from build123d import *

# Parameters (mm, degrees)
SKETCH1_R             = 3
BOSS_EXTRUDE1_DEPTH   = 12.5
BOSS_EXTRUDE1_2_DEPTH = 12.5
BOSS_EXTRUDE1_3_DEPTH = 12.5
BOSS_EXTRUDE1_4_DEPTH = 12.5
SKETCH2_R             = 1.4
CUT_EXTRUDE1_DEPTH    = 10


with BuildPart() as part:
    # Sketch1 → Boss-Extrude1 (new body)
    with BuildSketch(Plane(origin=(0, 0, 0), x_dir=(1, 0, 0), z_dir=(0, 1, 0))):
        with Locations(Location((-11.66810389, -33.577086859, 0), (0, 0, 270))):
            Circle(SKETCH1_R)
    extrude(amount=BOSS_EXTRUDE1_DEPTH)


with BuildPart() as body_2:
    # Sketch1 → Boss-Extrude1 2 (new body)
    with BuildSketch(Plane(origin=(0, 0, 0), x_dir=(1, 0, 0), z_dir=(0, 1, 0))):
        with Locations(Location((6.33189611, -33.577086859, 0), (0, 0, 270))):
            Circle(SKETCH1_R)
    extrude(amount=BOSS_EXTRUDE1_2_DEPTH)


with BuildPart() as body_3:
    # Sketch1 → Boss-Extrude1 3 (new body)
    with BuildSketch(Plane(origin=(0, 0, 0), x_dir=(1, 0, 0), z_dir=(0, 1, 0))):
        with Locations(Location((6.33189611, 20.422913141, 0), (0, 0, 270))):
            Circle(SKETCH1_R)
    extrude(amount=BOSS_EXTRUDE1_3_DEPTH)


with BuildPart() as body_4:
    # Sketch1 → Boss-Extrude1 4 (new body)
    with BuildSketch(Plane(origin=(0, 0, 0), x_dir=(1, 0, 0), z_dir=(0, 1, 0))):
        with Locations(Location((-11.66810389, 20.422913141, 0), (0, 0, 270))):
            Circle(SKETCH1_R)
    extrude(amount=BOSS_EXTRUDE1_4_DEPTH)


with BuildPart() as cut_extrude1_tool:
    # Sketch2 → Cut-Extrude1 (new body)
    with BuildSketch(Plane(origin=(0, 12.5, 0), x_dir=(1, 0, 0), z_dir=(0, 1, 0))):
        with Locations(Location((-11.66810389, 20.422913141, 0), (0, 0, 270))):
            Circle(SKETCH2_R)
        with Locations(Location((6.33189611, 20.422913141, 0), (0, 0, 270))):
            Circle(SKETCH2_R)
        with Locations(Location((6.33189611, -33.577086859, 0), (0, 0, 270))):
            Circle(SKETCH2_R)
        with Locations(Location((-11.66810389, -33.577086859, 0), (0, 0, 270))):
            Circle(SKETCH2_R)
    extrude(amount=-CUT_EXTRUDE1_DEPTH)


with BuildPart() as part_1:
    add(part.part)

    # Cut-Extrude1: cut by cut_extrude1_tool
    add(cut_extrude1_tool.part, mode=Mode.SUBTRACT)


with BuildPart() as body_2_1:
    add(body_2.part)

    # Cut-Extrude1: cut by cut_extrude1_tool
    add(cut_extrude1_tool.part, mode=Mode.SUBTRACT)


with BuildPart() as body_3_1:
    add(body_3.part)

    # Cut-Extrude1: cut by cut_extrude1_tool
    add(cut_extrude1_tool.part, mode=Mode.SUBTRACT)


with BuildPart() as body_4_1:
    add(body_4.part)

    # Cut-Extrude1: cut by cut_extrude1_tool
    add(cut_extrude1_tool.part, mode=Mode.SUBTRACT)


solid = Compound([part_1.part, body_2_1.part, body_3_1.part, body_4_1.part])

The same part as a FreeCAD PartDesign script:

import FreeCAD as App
import Part
import Sketcher
from FreeCAD import Vector
Q = App.Units.Quantity

doc = App.newDocument("Part")
body = doc.addObject("PartDesign::Body", "Body")

# Sketch on XZ plane
sketch1 = doc.addObject("Sketcher::SketchObject", "Sketch")
body.addObject(sketch1)
sketch1.AttachmentSupport = (doc.XZ_Plane, [""])
sketch1.MapMode = "FlatFace"
sketch1.addGeometry(Part.Circle(Vector(-11.7, 33.6, 0), Vector(0, 0, 1), 3), False)
sketch1.addConstraint([
    Sketcher.Constraint("Diameter", 0, Q("6 mm")),
    Sketcher.Constraint("DistanceX", 0, 3, -1, 1, Q("11.668104 mm")),
    Sketcher.Constraint("DistanceY", -1, 1, 0, 3, Q("33.577087 mm")),
])
pad1 = doc.addObject("PartDesign::Pad", "Pad")
body.addObject(pad1)
pad1.Profile = sketch1
pad1.Length = 12.5
pad1.Reversed = True
body2 = doc.addObject("PartDesign::Body", "Body001")

# Sketch on XZ plane
sketch2 = doc.addObject("Sketcher::SketchObject", "Sketch001")
body2.addObject(sketch2)
sketch2.AttachmentSupport = (doc.getObject("XZ_Plane001"), [""])
sketch2.MapMode = "FlatFace"
sketch2.addGeometry(Part.Circle(Vector(6.3, 33.6, 0), Vector(0, 0, 1), 3), False)
sketch2.addConstraint([
    Sketcher.Constraint("Diameter", 0, Q("6 mm")),
    Sketcher.Constraint("DistanceX", -1, 1, 0, 3, Q("6.331896 mm")),
    Sketcher.Constraint("DistanceY", -1, 1, 0, 3, Q("33.577087 mm")),
])
pad2 = doc.addObject("PartDesign::Pad", "Pad001")
body2.addObject(pad2)
pad2.Profile = sketch2
pad2.Length = 12.5
pad2.Reversed = True
body3 = doc.addObject("PartDesign::Body", "Body002")

# Sketch on XZ plane
sketch3 = doc.addObject("Sketcher::SketchObject", "Sketch002")
body3.addObject(sketch3)
sketch3.AttachmentSupport = (doc.getObject("XZ_Plane002"), [""])
sketch3.MapMode = "FlatFace"
sketch3.addGeometry(Part.Circle(Vector(6.3, -20.4, 0), Vector(0, 0, 1), 3), False)
sketch3.addConstraint([
    Sketcher.Constraint("Diameter", 0, Q("6 mm")),
    Sketcher.Constraint("DistanceX", -1, 1, 0, 3, Q("6.331896 mm")),
    Sketcher.Constraint("DistanceY", 0, 3, -1, 1, Q("20.422913 mm")),
])
pad3 = doc.addObject("PartDesign::Pad", "Pad002")
body3.addObject(pad3)
pad3.Profile = sketch3
pad3.Length = 12.5
pad3.Reversed = True
body4 = doc.addObject("PartDesign::Body", "Body003")

# Sketch on XZ plane
sketch4 = doc.addObject("Sketcher::SketchObject", "Sketch003")
body4.addObject(sketch4)
sketch4.AttachmentSupport = (doc.getObject("XZ_Plane003"), [""])
sketch4.MapMode = "FlatFace"
sketch4.addGeometry(Part.Circle(Vector(-11.7, -20.4, 0), Vector(0, 0, 1), 3), False)
sketch4.addConstraint([
    Sketcher.Constraint("Diameter", 0, Q("6 mm")),
    Sketcher.Constraint("DistanceX", 0, 3, -1, 1, Q("11.668104 mm")),
    Sketcher.Constraint("DistanceY", 0, 3, -1, 1, Q("20.422913 mm")),
])
pad4 = doc.addObject("PartDesign::Pad", "Pad003")
body4.addObject(pad4)
pad4.Profile = sketch4
pad4.Length = 12.5
pad4.Reversed = True
body5 = doc.addObject("PartDesign::Body", "Body004")
body5.AllowCompound = True

# Sketch on XZ plane
sketch5 = doc.addObject("Sketcher::SketchObject", "Sketch004")
body5.addObject(sketch5)
sketch5.AttachmentSupport = (doc.getObject("XZ_Plane004"), [""])
sketch5.MapMode = "FlatFace"
sketch5.AttachmentOffset = App.Placement(Vector(0, 0, -12.5), App.Rotation())
sketch5.addGeometry([
    Part.Circle(Vector(-11.7, -20.4, 0), Vector(0, 0, 1), 1.4),
    Part.Circle(Vector(6.3, -20.4, 0), Vector(0, 0, 1), 1.4),
    Part.Circle(Vector(6.3, 33.6, 0), Vector(0, 0, 1), 1.4),
    Part.Circle(Vector(-11.7, 33.6, 0), Vector(0, 0, 1), 1.4),
], False)
sketch5.addConstraint([
    Sketcher.Constraint("Equal", 0, 1),
    Sketcher.Constraint("Equal", 1, 2),
    Sketcher.Constraint("Equal", 2, 3),
    Sketcher.Constraint("Horizontal", 0, 3, 1, 3),
    Sketcher.Constraint("Horizontal", 2, 3, 3, 3),
    Sketcher.Constraint("Vertical", 1, 3, 2, 3),
    Sketcher.Constraint("Vertical", 0, 3, 3, 3),
    Sketcher.Constraint("Diameter", 0, Q("2.8 mm")),
    Sketcher.Constraint("DistanceX", 0, 3, 1, 3, Q("18 mm")),
    Sketcher.Constraint("DistanceY", 1, 3, 2, 3, Q("54 mm")),
    Sketcher.Constraint("DistanceX", 0, 3, -1, 1, Q("11.668104 mm")),
    Sketcher.Constraint("DistanceY", 0, 3, -1, 1, Q("20.422913 mm")),
])
pad5 = doc.addObject("PartDesign::Pad", "Pad004")
body5.addObject(pad5)
pad5.Profile = sketch5
pad5.Length = 10
doc.recompute()

body6 = doc.addObject("PartDesign::Body", "Body005")
body6.BaseFeature = body5
boolean = doc.addObject("PartDesign::Boolean", "Boolean")
body.addObject(boolean)
boolean.Type = "Cut"
boolean.addObjects([body6])
doc.recompute()

body7 = doc.addObject("PartDesign::Body", "Body006")
body7.BaseFeature = body5
boolean2 = doc.addObject("PartDesign::Boolean", "Boolean001")
body2.addObject(boolean2)
boolean2.Type = "Cut"
boolean2.addObjects([body7])
doc.recompute()

body8 = doc.addObject("PartDesign::Body", "Body007")
body8.BaseFeature = body5
boolean3 = doc.addObject("PartDesign::Boolean", "Boolean002")
body3.addObject(boolean3)
boolean3.Type = "Cut"
boolean3.addObjects([body8])
doc.recompute()

boolean4 = doc.addObject("PartDesign::Boolean", "Boolean003")
body4.addObject(boolean4)
boolean4.Type = "Cut"
boolean4.addObjects([body5])

doc.recompute()
